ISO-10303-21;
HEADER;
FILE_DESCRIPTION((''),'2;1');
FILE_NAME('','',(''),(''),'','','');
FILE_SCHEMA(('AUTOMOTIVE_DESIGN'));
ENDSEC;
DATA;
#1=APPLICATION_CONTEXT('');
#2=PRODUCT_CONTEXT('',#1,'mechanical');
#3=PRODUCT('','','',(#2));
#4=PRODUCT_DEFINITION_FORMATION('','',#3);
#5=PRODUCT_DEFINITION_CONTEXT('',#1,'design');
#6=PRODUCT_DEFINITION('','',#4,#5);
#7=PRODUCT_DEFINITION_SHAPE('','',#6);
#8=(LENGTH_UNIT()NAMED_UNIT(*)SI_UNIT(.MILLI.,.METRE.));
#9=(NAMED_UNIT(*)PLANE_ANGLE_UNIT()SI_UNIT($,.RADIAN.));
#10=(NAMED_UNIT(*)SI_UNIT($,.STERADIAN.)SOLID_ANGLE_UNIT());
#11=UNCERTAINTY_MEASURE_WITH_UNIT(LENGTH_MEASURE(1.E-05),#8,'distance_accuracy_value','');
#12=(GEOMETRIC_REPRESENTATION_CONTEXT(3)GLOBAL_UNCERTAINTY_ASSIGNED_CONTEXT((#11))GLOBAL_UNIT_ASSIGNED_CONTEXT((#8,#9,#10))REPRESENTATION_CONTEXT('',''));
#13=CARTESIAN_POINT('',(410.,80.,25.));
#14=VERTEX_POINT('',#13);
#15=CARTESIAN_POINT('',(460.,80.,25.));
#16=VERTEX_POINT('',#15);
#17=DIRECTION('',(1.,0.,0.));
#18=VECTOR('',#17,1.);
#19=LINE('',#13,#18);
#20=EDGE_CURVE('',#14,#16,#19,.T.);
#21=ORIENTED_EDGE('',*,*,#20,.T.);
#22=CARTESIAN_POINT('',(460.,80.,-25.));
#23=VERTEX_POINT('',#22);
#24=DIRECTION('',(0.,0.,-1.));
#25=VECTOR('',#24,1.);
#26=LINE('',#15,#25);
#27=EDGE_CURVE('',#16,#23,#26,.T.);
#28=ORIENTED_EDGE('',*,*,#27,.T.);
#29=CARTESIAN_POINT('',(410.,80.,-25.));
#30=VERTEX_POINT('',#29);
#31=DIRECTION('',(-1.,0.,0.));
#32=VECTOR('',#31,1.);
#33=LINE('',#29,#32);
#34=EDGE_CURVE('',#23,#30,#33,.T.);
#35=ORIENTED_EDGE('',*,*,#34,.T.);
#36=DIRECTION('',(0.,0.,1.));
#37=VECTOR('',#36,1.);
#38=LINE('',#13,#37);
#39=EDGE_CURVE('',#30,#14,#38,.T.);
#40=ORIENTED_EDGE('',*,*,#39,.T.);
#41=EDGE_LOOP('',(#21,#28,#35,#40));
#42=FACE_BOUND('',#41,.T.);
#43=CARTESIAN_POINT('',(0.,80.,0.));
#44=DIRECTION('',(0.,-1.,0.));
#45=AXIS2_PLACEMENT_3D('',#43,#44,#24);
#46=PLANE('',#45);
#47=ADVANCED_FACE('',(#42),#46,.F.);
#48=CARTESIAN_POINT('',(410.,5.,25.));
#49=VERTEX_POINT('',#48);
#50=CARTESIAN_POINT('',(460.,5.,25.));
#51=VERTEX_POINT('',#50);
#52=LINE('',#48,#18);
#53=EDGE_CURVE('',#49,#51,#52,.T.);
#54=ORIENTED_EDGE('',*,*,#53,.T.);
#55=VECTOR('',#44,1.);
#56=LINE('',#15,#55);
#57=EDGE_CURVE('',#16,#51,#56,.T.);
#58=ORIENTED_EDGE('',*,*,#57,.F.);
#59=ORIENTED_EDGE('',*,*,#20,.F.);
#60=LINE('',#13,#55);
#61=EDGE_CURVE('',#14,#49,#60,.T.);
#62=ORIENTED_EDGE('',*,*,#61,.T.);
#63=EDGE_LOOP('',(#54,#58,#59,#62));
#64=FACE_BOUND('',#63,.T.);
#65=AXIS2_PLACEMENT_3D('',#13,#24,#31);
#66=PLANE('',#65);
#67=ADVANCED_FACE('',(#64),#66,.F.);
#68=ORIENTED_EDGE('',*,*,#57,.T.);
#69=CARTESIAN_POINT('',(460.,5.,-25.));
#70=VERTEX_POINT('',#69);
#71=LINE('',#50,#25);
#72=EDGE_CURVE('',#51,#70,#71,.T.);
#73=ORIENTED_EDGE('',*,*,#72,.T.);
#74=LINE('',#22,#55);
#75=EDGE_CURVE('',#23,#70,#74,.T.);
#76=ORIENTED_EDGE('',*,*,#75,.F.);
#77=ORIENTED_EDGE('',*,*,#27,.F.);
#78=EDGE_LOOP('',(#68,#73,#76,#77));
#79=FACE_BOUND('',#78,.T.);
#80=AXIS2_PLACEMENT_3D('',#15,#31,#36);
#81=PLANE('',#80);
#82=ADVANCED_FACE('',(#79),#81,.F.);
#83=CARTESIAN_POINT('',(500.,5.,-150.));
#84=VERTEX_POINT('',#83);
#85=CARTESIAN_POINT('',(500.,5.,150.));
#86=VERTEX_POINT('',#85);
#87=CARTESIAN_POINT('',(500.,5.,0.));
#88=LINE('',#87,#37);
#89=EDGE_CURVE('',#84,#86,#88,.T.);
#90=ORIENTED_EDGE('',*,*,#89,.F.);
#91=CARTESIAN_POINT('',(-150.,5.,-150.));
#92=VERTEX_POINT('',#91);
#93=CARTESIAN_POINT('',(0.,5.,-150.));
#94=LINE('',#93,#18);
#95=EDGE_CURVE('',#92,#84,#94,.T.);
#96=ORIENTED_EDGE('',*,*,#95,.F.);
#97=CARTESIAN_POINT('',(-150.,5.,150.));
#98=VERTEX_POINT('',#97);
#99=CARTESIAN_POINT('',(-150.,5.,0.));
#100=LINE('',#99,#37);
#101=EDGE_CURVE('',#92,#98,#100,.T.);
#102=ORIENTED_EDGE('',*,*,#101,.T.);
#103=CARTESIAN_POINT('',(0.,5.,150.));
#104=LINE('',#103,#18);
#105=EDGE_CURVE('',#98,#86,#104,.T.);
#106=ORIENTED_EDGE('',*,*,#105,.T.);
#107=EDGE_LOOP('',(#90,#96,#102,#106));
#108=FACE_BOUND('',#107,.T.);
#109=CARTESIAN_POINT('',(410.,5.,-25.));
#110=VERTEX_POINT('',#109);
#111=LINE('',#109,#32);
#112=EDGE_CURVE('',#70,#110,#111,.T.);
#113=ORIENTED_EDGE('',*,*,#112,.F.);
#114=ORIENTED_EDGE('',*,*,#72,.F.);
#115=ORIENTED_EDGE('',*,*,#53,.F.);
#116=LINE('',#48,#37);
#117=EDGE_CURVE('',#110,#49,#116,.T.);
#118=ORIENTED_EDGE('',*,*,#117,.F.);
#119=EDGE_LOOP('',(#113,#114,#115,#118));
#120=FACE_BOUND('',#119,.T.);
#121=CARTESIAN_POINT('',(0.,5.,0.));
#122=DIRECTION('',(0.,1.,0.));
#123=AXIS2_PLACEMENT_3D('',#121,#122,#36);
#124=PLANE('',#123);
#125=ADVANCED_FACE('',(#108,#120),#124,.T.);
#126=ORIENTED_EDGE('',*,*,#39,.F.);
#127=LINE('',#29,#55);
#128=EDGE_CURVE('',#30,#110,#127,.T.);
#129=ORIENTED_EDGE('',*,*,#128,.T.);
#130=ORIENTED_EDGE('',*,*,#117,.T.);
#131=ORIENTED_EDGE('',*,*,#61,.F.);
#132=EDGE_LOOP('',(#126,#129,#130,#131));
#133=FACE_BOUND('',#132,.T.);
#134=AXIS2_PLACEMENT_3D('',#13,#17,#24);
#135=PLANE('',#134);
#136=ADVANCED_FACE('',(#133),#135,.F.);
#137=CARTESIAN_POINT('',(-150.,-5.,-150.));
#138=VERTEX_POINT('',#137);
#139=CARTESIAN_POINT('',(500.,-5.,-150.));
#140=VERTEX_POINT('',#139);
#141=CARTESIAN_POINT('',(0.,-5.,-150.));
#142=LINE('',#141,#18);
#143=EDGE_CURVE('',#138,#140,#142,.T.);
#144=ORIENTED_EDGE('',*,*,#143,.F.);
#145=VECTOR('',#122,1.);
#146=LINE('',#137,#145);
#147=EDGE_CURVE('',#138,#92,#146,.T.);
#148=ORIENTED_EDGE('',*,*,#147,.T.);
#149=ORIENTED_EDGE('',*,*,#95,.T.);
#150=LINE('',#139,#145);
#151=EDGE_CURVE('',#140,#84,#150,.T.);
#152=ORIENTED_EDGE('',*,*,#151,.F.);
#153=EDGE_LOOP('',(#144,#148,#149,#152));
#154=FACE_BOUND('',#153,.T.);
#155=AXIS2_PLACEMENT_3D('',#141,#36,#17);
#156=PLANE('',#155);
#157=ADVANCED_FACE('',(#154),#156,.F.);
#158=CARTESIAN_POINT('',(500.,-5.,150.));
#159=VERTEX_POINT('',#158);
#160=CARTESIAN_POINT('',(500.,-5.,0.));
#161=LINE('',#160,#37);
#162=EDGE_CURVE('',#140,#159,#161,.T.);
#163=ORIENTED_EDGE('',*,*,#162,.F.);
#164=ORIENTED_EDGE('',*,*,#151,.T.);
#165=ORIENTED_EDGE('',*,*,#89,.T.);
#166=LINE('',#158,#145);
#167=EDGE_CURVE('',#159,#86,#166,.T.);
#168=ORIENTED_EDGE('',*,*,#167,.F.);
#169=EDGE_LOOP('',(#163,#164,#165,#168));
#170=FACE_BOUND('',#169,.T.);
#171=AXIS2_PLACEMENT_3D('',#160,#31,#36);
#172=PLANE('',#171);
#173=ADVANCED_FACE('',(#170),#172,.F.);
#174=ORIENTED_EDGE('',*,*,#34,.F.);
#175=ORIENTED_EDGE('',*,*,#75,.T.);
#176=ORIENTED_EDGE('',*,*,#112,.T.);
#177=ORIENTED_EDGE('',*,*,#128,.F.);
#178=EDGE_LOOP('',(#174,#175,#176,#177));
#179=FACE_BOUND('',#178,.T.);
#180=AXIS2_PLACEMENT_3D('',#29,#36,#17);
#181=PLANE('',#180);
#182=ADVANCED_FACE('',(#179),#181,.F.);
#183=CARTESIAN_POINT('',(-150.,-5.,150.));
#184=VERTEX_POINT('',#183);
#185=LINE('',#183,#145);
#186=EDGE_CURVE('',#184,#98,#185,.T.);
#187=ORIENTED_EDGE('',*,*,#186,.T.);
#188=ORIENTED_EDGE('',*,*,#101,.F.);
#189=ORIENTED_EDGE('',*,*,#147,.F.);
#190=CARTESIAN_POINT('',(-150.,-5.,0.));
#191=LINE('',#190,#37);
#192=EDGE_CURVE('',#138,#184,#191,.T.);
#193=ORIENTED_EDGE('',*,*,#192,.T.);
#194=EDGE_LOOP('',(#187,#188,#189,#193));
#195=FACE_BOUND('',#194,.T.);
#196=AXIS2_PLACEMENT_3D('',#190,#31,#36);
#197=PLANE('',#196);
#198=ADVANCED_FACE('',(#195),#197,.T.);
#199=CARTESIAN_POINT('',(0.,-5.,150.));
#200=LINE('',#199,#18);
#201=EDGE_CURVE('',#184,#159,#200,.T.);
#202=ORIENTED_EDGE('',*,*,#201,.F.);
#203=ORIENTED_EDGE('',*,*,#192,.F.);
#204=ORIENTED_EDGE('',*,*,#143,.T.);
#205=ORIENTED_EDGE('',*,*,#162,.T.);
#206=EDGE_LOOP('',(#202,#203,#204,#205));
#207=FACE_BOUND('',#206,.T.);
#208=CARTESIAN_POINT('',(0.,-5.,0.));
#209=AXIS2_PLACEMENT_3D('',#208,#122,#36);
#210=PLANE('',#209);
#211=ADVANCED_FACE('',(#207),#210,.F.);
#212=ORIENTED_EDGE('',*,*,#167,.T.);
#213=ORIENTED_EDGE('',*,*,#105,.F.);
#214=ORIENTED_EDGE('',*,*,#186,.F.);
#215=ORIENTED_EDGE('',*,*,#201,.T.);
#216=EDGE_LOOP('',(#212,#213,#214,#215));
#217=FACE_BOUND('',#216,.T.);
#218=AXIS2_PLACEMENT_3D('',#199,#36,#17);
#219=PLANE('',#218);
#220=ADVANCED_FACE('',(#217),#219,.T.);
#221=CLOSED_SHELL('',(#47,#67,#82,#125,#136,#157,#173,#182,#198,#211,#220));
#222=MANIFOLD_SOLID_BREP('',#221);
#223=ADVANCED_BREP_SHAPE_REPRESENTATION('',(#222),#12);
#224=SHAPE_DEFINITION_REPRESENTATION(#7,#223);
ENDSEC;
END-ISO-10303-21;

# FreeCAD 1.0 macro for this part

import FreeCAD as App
import Part
import Sketcher
Q = App.Units.Quantity


def add_polygon(sketch, points):
    """Adds a closed chain of lines whose ends are joined by coincident constraints."""
    first, n = sketch.GeometryCount, len(points)
    for a, b in zip(points, points[1:] + points[:1]):
        sketch.addGeometry(Part.LineSegment(App.Vector(*a, 0), App.Vector(*b, 0)), False)
    for i in range(n):
        sketch.addConstraint(Sketcher.Constraint("Coincident", first + i, 2, first + (i + 1) % n, 1))

doc = App.newDocument("Part")
body = doc.addObject("PartDesign::Body", "Body")

# Sketch on XZ plane
sketch1 = body.newObject("Sketcher::SketchObject", "Sketch")
sketch1.AttachmentSupport = (doc.getObject("XZ_Plane"), [""])
sketch1.MapMode = "FlatFace"
add_polygon(sketch1, [(-150, -150), (-150, 150), (500, 150), (500, -150)])  # lines 0-3
sketch1.addConstraint([
    Sketcher.Constraint("Vertical", 0),
    Sketcher.Constraint("Horizontal", 1),
    Sketcher.Constraint("Vertical", 2),
    Sketcher.Constraint("Horizontal", 3),
    Sketcher.Constraint("DistanceX", 1, 1, 1, 2, Q("650 mm")),
    Sketcher.Constraint("DistanceY", 0, 1, 0, 2, Q("300 mm")),
    Sketcher.Constraint("DistanceX", 0, 2, -1, 1, Q("150 mm")),
    Sketcher.Constraint("DistanceY", -1, 1, 0, 2, Q("150 mm")),
])
pad1 = body.newObject("PartDesign::Pad", "Pad")
pad1.Profile = sketch1
pad1.Length = 10
pad1.Midplane = True

# Sketch on XZ plane
sketch2 = body.newObject("Sketcher::SketchObject", "Sketch001")
sketch2.AttachmentSupport = (doc.getObject("XZ_Plane"), [""])
sketch2.MapMode = "FlatFace"
sketch2.AttachmentOffset = App.Placement(App.Vector(0, 0, -5), App.Rotation())
add_polygon(sketch2, [(410, -25), (410, 25), (460, 25), (460, -25)])  # lines 0-3
sketch2.addConstraint([
    Sketcher.Constraint("Vertical", 0),
    Sketcher.Constraint("Horizontal", 1),
    Sketcher.Constraint("Vertical", 2),
    Sketcher.Constraint("Horizontal", 3),
    Sketcher.Constraint("Equal", 3, 0),
    Sketcher.Constraint("DistanceX", 1, 1, 1, 2, Q("50 mm")),
    Sketcher.Constraint("DistanceX", -1, 1, 0, 2, Q("410 mm")),
    Sketcher.Constraint("DistanceY", -1, 1, 0, 2, Q("25 mm")),
])
pad2 = body.newObject("PartDesign::Pad", "Pad001")
pad2.Profile = sketch2
pad2.Length = 75
pad2.Reversed = True

doc.recompute()
